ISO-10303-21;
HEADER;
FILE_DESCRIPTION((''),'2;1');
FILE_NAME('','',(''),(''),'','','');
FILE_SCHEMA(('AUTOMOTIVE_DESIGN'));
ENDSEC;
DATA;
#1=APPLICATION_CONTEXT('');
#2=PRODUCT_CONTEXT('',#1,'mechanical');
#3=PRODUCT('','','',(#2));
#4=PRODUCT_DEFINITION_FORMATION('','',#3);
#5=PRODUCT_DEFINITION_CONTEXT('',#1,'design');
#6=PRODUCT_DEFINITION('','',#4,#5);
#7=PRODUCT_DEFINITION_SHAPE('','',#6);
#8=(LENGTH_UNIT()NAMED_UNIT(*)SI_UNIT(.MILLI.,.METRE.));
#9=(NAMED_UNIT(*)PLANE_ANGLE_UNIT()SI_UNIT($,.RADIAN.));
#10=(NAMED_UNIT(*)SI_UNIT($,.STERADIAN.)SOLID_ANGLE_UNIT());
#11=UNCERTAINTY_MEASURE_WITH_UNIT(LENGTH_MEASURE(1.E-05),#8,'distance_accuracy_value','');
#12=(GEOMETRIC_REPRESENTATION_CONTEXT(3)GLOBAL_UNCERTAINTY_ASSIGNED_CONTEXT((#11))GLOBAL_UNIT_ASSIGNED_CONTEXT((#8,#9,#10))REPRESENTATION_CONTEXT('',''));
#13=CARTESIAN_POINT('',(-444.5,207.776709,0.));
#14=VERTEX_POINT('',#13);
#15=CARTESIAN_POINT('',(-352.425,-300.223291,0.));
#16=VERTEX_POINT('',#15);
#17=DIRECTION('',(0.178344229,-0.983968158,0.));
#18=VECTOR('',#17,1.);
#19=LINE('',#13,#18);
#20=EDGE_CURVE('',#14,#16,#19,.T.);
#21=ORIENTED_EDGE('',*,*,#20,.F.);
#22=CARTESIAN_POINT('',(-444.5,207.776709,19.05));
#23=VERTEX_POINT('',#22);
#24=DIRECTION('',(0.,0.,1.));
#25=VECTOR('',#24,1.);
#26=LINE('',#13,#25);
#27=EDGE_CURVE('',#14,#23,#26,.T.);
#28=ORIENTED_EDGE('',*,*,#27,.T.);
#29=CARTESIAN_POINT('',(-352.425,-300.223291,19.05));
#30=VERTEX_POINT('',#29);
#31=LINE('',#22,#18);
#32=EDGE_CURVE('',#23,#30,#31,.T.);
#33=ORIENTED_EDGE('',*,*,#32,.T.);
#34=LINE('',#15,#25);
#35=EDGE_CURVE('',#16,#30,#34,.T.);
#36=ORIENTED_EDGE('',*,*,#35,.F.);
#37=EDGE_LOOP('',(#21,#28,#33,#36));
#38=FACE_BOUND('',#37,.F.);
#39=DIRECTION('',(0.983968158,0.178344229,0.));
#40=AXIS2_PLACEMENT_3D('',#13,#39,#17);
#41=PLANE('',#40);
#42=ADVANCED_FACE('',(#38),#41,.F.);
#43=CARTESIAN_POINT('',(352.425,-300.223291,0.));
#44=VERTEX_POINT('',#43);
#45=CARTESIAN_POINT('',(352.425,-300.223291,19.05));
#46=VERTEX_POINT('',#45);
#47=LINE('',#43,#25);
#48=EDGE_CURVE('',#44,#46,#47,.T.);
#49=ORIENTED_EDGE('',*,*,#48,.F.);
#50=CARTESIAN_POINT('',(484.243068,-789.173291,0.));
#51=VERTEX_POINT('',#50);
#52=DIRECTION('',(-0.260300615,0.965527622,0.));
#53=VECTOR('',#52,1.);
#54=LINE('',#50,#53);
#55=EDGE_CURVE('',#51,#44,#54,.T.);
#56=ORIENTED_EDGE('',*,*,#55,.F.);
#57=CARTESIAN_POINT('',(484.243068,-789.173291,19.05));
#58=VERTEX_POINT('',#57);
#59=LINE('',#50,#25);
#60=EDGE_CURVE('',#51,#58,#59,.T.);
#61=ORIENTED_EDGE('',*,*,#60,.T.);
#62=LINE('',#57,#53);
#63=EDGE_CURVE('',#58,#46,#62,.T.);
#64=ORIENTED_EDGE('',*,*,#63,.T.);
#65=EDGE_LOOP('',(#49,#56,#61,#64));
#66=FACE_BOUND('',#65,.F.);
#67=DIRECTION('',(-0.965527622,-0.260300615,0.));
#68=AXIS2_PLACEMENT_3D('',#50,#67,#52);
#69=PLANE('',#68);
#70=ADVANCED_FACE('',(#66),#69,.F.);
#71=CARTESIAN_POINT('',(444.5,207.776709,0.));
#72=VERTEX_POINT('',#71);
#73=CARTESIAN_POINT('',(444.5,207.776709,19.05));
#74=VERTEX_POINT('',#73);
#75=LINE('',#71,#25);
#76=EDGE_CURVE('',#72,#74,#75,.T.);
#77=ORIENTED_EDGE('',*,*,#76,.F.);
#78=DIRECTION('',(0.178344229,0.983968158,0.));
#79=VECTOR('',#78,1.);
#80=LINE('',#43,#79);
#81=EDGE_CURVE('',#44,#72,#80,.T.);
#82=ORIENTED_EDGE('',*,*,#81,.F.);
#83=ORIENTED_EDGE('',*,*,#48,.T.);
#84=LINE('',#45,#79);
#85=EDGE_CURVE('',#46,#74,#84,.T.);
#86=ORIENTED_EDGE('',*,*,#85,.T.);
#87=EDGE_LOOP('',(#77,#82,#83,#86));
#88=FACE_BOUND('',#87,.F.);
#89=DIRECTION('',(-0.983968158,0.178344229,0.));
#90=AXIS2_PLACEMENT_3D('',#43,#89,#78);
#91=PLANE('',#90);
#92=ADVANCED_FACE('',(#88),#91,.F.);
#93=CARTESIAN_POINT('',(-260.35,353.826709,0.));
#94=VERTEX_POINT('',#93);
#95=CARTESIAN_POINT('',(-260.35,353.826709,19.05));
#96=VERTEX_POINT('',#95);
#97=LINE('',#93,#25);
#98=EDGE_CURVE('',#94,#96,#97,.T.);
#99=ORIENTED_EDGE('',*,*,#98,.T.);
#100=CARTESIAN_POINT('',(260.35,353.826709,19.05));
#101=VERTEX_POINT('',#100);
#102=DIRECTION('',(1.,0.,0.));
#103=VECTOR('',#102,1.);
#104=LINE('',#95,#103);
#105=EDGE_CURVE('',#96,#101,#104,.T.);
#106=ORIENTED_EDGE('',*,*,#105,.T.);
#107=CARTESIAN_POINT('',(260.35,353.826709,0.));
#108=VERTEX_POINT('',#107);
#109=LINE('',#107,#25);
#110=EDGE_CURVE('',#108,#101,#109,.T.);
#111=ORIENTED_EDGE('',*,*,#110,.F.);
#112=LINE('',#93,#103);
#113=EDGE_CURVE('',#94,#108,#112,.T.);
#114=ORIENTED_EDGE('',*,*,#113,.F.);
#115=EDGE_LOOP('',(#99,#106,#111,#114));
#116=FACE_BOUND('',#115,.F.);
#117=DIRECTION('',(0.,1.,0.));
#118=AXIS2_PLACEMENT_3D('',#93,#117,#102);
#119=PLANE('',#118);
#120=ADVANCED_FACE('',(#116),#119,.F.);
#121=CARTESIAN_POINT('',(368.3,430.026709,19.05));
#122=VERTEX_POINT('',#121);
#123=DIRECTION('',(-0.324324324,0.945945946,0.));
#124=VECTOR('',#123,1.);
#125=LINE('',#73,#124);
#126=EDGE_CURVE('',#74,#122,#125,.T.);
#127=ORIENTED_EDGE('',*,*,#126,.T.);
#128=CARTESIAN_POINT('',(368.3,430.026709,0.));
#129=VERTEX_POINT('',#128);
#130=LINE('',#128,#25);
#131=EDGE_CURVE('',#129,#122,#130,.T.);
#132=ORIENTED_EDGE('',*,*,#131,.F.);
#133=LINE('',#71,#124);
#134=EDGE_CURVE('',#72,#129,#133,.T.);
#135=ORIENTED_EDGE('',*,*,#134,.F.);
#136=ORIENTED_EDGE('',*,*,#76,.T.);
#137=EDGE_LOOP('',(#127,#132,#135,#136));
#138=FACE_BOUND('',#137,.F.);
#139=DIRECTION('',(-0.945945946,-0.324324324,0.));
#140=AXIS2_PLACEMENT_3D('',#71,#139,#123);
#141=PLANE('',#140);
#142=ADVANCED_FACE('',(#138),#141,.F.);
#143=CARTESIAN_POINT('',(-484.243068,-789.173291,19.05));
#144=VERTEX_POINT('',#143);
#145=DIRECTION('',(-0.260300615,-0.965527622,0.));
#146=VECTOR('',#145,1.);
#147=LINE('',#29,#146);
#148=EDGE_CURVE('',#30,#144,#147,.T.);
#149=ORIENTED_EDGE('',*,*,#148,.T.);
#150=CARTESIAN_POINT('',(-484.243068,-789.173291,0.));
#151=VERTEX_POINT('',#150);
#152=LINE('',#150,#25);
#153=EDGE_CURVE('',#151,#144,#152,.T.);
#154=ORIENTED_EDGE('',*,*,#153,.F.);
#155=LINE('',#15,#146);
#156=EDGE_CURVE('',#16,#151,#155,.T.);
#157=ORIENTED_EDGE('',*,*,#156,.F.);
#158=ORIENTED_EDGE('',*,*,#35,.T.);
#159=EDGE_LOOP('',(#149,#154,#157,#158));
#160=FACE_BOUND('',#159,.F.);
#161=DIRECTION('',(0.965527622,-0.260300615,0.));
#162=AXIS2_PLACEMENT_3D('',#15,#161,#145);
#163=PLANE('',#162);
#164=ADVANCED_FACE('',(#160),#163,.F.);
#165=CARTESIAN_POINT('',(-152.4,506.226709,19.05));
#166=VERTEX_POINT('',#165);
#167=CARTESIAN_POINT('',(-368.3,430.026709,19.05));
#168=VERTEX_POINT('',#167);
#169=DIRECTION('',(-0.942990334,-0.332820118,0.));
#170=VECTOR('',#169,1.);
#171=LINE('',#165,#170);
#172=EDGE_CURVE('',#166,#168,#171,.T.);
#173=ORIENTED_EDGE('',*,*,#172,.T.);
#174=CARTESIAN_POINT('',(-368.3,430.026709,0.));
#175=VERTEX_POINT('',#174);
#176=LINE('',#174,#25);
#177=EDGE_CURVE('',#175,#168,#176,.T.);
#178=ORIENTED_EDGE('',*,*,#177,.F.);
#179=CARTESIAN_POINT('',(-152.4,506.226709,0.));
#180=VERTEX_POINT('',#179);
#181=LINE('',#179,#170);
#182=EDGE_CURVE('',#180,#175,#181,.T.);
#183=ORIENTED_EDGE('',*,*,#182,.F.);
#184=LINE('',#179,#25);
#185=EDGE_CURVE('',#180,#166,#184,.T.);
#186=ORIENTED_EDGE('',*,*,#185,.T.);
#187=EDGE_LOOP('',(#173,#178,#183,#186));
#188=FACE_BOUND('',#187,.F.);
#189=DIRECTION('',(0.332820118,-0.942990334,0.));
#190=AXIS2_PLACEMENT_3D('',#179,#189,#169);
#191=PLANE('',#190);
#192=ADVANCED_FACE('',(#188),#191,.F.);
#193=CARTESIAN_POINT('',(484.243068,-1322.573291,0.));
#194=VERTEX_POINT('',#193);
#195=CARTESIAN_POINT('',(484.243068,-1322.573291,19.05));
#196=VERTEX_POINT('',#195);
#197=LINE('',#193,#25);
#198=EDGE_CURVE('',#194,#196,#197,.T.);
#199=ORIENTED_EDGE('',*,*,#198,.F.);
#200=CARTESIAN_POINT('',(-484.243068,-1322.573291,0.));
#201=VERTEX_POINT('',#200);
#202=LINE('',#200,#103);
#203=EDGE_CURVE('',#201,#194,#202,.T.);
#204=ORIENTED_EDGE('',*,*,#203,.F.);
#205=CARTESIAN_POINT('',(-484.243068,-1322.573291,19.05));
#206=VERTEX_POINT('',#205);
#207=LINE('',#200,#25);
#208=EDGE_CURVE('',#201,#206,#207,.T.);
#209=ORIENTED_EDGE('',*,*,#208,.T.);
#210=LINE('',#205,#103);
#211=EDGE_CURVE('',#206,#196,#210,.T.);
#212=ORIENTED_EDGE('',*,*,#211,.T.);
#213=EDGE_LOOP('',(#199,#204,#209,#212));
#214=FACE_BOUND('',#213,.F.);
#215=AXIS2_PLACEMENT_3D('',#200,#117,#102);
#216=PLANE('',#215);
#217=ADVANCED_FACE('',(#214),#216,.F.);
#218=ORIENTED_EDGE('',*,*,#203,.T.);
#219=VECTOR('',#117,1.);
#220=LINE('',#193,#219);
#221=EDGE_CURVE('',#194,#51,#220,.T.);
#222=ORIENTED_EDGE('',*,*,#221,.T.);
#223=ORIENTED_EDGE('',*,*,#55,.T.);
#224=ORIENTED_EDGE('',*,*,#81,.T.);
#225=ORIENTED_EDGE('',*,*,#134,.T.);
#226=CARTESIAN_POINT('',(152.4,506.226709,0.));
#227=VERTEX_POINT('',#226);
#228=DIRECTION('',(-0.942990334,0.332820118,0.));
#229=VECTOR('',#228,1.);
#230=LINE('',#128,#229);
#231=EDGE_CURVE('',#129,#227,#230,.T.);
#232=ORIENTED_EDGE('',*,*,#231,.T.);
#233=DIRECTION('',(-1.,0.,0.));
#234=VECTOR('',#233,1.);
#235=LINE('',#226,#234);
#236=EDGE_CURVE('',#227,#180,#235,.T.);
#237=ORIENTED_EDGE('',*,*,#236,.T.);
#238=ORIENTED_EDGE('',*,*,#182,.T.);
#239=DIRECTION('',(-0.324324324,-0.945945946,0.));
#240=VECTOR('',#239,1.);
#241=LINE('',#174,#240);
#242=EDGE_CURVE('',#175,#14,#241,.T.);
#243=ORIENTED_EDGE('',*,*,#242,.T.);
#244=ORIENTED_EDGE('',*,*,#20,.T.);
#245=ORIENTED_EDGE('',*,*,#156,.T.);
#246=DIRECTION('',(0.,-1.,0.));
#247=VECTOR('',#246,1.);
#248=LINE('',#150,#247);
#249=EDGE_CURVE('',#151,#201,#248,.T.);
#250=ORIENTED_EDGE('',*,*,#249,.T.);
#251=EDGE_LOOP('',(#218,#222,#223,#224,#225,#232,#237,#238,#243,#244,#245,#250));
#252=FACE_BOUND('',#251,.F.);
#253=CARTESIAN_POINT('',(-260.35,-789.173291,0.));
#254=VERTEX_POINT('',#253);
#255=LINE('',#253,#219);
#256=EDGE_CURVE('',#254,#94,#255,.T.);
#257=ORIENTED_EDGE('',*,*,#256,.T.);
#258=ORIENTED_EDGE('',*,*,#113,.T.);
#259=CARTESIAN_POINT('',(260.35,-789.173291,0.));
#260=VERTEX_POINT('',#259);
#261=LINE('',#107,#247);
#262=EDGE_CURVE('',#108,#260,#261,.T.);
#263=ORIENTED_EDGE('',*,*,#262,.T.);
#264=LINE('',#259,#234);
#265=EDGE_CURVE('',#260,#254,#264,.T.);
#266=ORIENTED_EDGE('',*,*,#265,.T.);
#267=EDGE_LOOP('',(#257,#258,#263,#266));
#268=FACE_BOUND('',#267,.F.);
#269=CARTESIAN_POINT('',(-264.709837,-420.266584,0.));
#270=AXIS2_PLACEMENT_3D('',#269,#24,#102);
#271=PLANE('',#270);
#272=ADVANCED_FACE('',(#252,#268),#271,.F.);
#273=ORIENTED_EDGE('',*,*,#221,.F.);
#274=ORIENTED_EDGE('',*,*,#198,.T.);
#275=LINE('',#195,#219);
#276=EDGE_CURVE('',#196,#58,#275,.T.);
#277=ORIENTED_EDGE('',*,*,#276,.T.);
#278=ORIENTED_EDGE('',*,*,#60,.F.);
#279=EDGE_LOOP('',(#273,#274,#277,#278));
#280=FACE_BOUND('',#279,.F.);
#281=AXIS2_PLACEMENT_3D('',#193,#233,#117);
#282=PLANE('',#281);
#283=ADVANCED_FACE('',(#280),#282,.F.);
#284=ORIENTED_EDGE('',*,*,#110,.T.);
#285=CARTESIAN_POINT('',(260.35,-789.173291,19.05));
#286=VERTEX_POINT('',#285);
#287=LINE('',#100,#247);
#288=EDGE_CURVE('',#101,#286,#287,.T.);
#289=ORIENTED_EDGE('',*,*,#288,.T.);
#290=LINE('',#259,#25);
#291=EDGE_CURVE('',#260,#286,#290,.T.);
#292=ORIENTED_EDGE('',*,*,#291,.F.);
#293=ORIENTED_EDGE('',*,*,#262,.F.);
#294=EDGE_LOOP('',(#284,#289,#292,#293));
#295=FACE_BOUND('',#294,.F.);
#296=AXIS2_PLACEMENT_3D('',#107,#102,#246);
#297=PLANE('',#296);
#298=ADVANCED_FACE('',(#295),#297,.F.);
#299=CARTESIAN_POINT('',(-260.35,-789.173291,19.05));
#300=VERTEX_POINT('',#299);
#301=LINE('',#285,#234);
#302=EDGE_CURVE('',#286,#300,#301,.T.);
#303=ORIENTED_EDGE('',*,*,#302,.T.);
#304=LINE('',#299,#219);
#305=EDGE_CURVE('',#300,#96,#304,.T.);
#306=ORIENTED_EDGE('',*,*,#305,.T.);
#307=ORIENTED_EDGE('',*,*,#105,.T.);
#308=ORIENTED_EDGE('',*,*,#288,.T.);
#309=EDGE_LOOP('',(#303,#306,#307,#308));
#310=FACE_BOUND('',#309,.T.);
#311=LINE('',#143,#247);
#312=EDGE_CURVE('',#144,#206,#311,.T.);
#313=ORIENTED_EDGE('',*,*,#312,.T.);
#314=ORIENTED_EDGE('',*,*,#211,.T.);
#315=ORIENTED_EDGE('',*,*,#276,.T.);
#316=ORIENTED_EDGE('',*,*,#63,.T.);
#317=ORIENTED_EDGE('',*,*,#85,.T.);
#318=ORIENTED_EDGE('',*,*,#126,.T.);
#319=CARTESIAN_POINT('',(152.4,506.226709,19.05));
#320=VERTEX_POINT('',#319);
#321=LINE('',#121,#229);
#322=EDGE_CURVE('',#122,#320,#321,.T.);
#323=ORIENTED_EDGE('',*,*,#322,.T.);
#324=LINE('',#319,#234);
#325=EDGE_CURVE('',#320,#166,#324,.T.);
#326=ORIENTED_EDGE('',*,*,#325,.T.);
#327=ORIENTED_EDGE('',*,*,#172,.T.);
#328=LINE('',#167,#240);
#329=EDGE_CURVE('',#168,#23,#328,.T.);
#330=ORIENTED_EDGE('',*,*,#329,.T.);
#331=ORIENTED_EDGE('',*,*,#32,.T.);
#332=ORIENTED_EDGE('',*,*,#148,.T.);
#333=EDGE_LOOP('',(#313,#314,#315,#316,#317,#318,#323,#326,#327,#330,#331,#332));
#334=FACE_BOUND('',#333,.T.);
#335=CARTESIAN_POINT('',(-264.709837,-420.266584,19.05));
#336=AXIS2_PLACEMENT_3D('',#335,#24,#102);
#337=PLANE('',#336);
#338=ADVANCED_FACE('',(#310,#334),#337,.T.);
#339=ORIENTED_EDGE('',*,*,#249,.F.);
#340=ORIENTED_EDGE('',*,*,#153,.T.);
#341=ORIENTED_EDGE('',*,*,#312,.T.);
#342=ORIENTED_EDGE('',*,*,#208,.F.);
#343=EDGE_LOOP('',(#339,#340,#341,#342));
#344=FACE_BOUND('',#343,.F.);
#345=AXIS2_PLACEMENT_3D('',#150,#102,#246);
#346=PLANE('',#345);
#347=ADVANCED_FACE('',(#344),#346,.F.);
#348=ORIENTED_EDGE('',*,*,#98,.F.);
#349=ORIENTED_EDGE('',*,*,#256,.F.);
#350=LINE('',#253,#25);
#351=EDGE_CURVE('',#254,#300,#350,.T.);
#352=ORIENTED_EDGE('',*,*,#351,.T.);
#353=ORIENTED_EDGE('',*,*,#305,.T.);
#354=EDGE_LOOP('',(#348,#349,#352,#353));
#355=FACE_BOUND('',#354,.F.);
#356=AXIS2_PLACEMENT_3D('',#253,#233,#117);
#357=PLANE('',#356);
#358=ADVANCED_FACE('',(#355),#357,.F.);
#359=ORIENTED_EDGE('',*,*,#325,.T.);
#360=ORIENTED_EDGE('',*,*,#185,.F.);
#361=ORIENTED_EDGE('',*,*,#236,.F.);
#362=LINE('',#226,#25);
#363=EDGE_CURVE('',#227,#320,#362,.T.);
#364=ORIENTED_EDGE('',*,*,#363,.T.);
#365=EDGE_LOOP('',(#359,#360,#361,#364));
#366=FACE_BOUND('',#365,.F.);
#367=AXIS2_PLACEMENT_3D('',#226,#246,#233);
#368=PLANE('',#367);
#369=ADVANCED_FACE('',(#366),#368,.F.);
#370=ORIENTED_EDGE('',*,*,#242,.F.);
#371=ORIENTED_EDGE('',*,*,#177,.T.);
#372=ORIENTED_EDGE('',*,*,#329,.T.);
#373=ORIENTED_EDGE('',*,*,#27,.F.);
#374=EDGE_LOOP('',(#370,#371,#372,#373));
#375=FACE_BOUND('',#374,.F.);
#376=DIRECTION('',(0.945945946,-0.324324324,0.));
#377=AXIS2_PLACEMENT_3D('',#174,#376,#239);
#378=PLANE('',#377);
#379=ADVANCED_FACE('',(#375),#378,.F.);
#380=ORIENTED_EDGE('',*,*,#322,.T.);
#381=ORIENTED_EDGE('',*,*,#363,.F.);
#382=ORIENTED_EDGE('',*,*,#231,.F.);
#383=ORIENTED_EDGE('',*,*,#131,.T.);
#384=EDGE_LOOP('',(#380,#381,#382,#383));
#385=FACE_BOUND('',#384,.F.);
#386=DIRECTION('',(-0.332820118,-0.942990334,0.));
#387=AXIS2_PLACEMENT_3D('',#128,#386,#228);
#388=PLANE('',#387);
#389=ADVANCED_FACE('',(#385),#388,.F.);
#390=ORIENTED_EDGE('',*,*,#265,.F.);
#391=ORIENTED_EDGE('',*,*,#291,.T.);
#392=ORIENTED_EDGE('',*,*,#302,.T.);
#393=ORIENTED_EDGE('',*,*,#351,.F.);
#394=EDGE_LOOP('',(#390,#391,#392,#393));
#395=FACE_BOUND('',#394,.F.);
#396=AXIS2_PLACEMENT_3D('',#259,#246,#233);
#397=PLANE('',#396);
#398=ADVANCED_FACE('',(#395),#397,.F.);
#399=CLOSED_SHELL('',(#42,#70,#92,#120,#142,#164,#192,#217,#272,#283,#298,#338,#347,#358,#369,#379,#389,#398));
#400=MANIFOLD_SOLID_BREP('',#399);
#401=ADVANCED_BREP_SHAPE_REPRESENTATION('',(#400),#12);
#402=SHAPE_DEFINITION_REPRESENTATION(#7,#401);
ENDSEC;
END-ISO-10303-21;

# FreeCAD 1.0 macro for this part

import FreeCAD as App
import Part
import Sketcher

V = App.Vector
Q = App.Units.Quantity

doc = App.newDocument("Part")
body = doc.addObject("PartDesign::Body", "Body")

sketch1 = doc.addObject("Sketcher::SketchObject", "Sketch")
body.addObject(sketch1)
sketch1.AttachmentSupport = (doc.XY_Plane, [""])
sketch1.MapMode = "FlatFace"
sketch1.addGeometry([
    Part.LineSegment(V(-152.4, 506.226709, 0), V(-368.3, 430.026709, 0)),
    Part.LineSegment(V(-368.3, 430.026709, 0), V(-444.5, 207.776709, 0)),
    Part.LineSegment(V(-444.5, 207.776709, 0), V(-352.425, -300.223291, 0)),
    Part.LineSegment(V(-352.425, -300.223291, 0), V(-484.243068, -789.173291, 0)),
    Part.LineSegment(V(-484.243068, -789.173291, 0), V(-484.243068, -1322.573291, 0)),
    Part.LineSegment(V(-484.243068, -1322.573291, 0), V(484.243068, -1322.573291, 0)),
    Part.LineSegment(V(484.243068, -1322.573291, 0), V(484.243068, -789.173291, 0)),
    Part.LineSegment(V(484.243068, -789.173291, 0), V(352.425, -300.223291, 0)),
    Part.LineSegment(V(352.425, -300.223291, 0), V(444.5, 207.776709, 0)),
    Part.LineSegment(V(444.5, 207.776709, 0), V(368.3, 430.026709, 0)),
    Part.LineSegment(V(368.3, 430.026709, 0), V(152.4, 506.226709, 0)),
    Part.LineSegment(V(152.4, 506.226709, 0), V(-152.4, 506.226709, 0)),
    Part.LineSegment(V(-260.35, -789.173291, 0), V(-260.35, 353.826709, 0)),
    Part.LineSegment(V(-260.35, 353.826709, 0), V(260.35, 353.826709, 0)),
    Part.LineSegment(V(260.35, 353.826709, 0), V(260.35, -789.173291, 0)),
    Part.LineSegment(V(260.35, -789.173291, 0), V(-260.35, -789.173291, 0)),
], False)
sketch1.addConstraint([
    Sketcher.Constraint("Coincident", 0, 2, 1, 1),
    Sketcher.Constraint("Coincident", 1, 2, 2, 1),
    Sketcher.Constraint("Coincident", 2, 2, 3, 1),
    Sketcher.Constraint("Coincident", 3, 2, 4, 1),
    Sketcher.Constraint("Coincident", 4, 2, 5, 1),
    Sketcher.Constraint("Coincident", 5, 2, 6, 1),
    Sketcher.Constraint("Coincident", 6, 2, 7, 1),
    Sketcher.Constraint("Coincident", 7, 2, 8, 1),
    Sketcher.Constraint("Coincident", 8, 2, 9, 1),
    Sketcher.Constraint("Coincident", 9, 2, 10, 1),
    Sketcher.Constraint("Coincident", 10, 2, 11, 1),
    Sketcher.Constraint("Coincident", 11, 2, 0, 1),
    Sketcher.Constraint("Coincident", 12, 2, 13, 1),
    Sketcher.Constraint("Coincident", 13, 2, 14, 1),
    Sketcher.Constraint("Coincident", 14, 2, 15, 1),
    Sketcher.Constraint("Coincident", 15, 2, 12, 1),
    Sketcher.Constraint("Vertical", 4),
    Sketcher.Constraint("Horizontal", 5),
    Sketcher.Constraint("Vertical", 6),
    Sketcher.Constraint("Horizontal", 11),
    Sketcher.Constraint("Vertical", 12),
    Sketcher.Constraint("Horizontal", 13),
    Sketcher.Constraint("Vertical", 14),
    Sketcher.Constraint("Horizontal", 15),
    Sketcher.Constraint("Symmetric", 3, 2, 6, 2, -2),
    Sketcher.Constraint("Symmetric", 2, 2, 7, 2, -2),
    Sketcher.Constraint("Symmetric", 1, 2, 8, 2, -2),
    Sketcher.Constraint("Symmetric", 0, 2, 9, 2, -2),
    Sketcher.Constraint("Horizontal", 6, 2, 14, 2),
    Sketcher.Constraint("Equal", 0, 10),
    Sketcher.Constraint("DistanceX", 11, 2, 11, 1, Q("12 in")),
    Sketcher.Constraint("DistanceY", 4, 2, 4, 1, Q("21 in")),
    Sketcher.Constraint("DistanceY", 12, 1, 12, 2, Q("45 in")),
    Sketcher.Constraint("DistanceX", 13, 1, 13, 2, Q("20.5 in")),
    Sketcher.Constraint("DistanceX", 1, 2, 0, 2, Q("3 in")),
    Sketcher.Constraint("DistanceY", 2, 2, 1, 2, Q("20 in")),
    Sketcher.Constraint("DistanceY", 3, 2, 0, 2, Q("48 in")),
    Sketcher.Constraint("DistanceX", 0, 2, 8, 2, Q("32 in")),
    Sketcher.Constraint("DistanceY", 9, 2, 10, 2, Q("3 in")),
    Sketcher.Constraint("Distance", 1, Q("9.25 in")),
    Sketcher.Constraint("DistanceX", 12, 2, -1, 1, Q("10.25 in")),
    Sketcher.Constraint("DistanceX", 2, 2, 7, 2, Q("27.75 in")),
    Sketcher.Constraint("DistanceX", 5, 1, 5, 2, 968.486136),
    Sketcher.Constraint("DistanceY", -1, 1, 0, 2, 430.026709),
])
pad1 = doc.addObject("PartDesign::Pad", "Pad")
body.addObject(pad1)
pad1.Profile = sketch1
pad1.Length = Q("0.75 in")

doc.recompute()
